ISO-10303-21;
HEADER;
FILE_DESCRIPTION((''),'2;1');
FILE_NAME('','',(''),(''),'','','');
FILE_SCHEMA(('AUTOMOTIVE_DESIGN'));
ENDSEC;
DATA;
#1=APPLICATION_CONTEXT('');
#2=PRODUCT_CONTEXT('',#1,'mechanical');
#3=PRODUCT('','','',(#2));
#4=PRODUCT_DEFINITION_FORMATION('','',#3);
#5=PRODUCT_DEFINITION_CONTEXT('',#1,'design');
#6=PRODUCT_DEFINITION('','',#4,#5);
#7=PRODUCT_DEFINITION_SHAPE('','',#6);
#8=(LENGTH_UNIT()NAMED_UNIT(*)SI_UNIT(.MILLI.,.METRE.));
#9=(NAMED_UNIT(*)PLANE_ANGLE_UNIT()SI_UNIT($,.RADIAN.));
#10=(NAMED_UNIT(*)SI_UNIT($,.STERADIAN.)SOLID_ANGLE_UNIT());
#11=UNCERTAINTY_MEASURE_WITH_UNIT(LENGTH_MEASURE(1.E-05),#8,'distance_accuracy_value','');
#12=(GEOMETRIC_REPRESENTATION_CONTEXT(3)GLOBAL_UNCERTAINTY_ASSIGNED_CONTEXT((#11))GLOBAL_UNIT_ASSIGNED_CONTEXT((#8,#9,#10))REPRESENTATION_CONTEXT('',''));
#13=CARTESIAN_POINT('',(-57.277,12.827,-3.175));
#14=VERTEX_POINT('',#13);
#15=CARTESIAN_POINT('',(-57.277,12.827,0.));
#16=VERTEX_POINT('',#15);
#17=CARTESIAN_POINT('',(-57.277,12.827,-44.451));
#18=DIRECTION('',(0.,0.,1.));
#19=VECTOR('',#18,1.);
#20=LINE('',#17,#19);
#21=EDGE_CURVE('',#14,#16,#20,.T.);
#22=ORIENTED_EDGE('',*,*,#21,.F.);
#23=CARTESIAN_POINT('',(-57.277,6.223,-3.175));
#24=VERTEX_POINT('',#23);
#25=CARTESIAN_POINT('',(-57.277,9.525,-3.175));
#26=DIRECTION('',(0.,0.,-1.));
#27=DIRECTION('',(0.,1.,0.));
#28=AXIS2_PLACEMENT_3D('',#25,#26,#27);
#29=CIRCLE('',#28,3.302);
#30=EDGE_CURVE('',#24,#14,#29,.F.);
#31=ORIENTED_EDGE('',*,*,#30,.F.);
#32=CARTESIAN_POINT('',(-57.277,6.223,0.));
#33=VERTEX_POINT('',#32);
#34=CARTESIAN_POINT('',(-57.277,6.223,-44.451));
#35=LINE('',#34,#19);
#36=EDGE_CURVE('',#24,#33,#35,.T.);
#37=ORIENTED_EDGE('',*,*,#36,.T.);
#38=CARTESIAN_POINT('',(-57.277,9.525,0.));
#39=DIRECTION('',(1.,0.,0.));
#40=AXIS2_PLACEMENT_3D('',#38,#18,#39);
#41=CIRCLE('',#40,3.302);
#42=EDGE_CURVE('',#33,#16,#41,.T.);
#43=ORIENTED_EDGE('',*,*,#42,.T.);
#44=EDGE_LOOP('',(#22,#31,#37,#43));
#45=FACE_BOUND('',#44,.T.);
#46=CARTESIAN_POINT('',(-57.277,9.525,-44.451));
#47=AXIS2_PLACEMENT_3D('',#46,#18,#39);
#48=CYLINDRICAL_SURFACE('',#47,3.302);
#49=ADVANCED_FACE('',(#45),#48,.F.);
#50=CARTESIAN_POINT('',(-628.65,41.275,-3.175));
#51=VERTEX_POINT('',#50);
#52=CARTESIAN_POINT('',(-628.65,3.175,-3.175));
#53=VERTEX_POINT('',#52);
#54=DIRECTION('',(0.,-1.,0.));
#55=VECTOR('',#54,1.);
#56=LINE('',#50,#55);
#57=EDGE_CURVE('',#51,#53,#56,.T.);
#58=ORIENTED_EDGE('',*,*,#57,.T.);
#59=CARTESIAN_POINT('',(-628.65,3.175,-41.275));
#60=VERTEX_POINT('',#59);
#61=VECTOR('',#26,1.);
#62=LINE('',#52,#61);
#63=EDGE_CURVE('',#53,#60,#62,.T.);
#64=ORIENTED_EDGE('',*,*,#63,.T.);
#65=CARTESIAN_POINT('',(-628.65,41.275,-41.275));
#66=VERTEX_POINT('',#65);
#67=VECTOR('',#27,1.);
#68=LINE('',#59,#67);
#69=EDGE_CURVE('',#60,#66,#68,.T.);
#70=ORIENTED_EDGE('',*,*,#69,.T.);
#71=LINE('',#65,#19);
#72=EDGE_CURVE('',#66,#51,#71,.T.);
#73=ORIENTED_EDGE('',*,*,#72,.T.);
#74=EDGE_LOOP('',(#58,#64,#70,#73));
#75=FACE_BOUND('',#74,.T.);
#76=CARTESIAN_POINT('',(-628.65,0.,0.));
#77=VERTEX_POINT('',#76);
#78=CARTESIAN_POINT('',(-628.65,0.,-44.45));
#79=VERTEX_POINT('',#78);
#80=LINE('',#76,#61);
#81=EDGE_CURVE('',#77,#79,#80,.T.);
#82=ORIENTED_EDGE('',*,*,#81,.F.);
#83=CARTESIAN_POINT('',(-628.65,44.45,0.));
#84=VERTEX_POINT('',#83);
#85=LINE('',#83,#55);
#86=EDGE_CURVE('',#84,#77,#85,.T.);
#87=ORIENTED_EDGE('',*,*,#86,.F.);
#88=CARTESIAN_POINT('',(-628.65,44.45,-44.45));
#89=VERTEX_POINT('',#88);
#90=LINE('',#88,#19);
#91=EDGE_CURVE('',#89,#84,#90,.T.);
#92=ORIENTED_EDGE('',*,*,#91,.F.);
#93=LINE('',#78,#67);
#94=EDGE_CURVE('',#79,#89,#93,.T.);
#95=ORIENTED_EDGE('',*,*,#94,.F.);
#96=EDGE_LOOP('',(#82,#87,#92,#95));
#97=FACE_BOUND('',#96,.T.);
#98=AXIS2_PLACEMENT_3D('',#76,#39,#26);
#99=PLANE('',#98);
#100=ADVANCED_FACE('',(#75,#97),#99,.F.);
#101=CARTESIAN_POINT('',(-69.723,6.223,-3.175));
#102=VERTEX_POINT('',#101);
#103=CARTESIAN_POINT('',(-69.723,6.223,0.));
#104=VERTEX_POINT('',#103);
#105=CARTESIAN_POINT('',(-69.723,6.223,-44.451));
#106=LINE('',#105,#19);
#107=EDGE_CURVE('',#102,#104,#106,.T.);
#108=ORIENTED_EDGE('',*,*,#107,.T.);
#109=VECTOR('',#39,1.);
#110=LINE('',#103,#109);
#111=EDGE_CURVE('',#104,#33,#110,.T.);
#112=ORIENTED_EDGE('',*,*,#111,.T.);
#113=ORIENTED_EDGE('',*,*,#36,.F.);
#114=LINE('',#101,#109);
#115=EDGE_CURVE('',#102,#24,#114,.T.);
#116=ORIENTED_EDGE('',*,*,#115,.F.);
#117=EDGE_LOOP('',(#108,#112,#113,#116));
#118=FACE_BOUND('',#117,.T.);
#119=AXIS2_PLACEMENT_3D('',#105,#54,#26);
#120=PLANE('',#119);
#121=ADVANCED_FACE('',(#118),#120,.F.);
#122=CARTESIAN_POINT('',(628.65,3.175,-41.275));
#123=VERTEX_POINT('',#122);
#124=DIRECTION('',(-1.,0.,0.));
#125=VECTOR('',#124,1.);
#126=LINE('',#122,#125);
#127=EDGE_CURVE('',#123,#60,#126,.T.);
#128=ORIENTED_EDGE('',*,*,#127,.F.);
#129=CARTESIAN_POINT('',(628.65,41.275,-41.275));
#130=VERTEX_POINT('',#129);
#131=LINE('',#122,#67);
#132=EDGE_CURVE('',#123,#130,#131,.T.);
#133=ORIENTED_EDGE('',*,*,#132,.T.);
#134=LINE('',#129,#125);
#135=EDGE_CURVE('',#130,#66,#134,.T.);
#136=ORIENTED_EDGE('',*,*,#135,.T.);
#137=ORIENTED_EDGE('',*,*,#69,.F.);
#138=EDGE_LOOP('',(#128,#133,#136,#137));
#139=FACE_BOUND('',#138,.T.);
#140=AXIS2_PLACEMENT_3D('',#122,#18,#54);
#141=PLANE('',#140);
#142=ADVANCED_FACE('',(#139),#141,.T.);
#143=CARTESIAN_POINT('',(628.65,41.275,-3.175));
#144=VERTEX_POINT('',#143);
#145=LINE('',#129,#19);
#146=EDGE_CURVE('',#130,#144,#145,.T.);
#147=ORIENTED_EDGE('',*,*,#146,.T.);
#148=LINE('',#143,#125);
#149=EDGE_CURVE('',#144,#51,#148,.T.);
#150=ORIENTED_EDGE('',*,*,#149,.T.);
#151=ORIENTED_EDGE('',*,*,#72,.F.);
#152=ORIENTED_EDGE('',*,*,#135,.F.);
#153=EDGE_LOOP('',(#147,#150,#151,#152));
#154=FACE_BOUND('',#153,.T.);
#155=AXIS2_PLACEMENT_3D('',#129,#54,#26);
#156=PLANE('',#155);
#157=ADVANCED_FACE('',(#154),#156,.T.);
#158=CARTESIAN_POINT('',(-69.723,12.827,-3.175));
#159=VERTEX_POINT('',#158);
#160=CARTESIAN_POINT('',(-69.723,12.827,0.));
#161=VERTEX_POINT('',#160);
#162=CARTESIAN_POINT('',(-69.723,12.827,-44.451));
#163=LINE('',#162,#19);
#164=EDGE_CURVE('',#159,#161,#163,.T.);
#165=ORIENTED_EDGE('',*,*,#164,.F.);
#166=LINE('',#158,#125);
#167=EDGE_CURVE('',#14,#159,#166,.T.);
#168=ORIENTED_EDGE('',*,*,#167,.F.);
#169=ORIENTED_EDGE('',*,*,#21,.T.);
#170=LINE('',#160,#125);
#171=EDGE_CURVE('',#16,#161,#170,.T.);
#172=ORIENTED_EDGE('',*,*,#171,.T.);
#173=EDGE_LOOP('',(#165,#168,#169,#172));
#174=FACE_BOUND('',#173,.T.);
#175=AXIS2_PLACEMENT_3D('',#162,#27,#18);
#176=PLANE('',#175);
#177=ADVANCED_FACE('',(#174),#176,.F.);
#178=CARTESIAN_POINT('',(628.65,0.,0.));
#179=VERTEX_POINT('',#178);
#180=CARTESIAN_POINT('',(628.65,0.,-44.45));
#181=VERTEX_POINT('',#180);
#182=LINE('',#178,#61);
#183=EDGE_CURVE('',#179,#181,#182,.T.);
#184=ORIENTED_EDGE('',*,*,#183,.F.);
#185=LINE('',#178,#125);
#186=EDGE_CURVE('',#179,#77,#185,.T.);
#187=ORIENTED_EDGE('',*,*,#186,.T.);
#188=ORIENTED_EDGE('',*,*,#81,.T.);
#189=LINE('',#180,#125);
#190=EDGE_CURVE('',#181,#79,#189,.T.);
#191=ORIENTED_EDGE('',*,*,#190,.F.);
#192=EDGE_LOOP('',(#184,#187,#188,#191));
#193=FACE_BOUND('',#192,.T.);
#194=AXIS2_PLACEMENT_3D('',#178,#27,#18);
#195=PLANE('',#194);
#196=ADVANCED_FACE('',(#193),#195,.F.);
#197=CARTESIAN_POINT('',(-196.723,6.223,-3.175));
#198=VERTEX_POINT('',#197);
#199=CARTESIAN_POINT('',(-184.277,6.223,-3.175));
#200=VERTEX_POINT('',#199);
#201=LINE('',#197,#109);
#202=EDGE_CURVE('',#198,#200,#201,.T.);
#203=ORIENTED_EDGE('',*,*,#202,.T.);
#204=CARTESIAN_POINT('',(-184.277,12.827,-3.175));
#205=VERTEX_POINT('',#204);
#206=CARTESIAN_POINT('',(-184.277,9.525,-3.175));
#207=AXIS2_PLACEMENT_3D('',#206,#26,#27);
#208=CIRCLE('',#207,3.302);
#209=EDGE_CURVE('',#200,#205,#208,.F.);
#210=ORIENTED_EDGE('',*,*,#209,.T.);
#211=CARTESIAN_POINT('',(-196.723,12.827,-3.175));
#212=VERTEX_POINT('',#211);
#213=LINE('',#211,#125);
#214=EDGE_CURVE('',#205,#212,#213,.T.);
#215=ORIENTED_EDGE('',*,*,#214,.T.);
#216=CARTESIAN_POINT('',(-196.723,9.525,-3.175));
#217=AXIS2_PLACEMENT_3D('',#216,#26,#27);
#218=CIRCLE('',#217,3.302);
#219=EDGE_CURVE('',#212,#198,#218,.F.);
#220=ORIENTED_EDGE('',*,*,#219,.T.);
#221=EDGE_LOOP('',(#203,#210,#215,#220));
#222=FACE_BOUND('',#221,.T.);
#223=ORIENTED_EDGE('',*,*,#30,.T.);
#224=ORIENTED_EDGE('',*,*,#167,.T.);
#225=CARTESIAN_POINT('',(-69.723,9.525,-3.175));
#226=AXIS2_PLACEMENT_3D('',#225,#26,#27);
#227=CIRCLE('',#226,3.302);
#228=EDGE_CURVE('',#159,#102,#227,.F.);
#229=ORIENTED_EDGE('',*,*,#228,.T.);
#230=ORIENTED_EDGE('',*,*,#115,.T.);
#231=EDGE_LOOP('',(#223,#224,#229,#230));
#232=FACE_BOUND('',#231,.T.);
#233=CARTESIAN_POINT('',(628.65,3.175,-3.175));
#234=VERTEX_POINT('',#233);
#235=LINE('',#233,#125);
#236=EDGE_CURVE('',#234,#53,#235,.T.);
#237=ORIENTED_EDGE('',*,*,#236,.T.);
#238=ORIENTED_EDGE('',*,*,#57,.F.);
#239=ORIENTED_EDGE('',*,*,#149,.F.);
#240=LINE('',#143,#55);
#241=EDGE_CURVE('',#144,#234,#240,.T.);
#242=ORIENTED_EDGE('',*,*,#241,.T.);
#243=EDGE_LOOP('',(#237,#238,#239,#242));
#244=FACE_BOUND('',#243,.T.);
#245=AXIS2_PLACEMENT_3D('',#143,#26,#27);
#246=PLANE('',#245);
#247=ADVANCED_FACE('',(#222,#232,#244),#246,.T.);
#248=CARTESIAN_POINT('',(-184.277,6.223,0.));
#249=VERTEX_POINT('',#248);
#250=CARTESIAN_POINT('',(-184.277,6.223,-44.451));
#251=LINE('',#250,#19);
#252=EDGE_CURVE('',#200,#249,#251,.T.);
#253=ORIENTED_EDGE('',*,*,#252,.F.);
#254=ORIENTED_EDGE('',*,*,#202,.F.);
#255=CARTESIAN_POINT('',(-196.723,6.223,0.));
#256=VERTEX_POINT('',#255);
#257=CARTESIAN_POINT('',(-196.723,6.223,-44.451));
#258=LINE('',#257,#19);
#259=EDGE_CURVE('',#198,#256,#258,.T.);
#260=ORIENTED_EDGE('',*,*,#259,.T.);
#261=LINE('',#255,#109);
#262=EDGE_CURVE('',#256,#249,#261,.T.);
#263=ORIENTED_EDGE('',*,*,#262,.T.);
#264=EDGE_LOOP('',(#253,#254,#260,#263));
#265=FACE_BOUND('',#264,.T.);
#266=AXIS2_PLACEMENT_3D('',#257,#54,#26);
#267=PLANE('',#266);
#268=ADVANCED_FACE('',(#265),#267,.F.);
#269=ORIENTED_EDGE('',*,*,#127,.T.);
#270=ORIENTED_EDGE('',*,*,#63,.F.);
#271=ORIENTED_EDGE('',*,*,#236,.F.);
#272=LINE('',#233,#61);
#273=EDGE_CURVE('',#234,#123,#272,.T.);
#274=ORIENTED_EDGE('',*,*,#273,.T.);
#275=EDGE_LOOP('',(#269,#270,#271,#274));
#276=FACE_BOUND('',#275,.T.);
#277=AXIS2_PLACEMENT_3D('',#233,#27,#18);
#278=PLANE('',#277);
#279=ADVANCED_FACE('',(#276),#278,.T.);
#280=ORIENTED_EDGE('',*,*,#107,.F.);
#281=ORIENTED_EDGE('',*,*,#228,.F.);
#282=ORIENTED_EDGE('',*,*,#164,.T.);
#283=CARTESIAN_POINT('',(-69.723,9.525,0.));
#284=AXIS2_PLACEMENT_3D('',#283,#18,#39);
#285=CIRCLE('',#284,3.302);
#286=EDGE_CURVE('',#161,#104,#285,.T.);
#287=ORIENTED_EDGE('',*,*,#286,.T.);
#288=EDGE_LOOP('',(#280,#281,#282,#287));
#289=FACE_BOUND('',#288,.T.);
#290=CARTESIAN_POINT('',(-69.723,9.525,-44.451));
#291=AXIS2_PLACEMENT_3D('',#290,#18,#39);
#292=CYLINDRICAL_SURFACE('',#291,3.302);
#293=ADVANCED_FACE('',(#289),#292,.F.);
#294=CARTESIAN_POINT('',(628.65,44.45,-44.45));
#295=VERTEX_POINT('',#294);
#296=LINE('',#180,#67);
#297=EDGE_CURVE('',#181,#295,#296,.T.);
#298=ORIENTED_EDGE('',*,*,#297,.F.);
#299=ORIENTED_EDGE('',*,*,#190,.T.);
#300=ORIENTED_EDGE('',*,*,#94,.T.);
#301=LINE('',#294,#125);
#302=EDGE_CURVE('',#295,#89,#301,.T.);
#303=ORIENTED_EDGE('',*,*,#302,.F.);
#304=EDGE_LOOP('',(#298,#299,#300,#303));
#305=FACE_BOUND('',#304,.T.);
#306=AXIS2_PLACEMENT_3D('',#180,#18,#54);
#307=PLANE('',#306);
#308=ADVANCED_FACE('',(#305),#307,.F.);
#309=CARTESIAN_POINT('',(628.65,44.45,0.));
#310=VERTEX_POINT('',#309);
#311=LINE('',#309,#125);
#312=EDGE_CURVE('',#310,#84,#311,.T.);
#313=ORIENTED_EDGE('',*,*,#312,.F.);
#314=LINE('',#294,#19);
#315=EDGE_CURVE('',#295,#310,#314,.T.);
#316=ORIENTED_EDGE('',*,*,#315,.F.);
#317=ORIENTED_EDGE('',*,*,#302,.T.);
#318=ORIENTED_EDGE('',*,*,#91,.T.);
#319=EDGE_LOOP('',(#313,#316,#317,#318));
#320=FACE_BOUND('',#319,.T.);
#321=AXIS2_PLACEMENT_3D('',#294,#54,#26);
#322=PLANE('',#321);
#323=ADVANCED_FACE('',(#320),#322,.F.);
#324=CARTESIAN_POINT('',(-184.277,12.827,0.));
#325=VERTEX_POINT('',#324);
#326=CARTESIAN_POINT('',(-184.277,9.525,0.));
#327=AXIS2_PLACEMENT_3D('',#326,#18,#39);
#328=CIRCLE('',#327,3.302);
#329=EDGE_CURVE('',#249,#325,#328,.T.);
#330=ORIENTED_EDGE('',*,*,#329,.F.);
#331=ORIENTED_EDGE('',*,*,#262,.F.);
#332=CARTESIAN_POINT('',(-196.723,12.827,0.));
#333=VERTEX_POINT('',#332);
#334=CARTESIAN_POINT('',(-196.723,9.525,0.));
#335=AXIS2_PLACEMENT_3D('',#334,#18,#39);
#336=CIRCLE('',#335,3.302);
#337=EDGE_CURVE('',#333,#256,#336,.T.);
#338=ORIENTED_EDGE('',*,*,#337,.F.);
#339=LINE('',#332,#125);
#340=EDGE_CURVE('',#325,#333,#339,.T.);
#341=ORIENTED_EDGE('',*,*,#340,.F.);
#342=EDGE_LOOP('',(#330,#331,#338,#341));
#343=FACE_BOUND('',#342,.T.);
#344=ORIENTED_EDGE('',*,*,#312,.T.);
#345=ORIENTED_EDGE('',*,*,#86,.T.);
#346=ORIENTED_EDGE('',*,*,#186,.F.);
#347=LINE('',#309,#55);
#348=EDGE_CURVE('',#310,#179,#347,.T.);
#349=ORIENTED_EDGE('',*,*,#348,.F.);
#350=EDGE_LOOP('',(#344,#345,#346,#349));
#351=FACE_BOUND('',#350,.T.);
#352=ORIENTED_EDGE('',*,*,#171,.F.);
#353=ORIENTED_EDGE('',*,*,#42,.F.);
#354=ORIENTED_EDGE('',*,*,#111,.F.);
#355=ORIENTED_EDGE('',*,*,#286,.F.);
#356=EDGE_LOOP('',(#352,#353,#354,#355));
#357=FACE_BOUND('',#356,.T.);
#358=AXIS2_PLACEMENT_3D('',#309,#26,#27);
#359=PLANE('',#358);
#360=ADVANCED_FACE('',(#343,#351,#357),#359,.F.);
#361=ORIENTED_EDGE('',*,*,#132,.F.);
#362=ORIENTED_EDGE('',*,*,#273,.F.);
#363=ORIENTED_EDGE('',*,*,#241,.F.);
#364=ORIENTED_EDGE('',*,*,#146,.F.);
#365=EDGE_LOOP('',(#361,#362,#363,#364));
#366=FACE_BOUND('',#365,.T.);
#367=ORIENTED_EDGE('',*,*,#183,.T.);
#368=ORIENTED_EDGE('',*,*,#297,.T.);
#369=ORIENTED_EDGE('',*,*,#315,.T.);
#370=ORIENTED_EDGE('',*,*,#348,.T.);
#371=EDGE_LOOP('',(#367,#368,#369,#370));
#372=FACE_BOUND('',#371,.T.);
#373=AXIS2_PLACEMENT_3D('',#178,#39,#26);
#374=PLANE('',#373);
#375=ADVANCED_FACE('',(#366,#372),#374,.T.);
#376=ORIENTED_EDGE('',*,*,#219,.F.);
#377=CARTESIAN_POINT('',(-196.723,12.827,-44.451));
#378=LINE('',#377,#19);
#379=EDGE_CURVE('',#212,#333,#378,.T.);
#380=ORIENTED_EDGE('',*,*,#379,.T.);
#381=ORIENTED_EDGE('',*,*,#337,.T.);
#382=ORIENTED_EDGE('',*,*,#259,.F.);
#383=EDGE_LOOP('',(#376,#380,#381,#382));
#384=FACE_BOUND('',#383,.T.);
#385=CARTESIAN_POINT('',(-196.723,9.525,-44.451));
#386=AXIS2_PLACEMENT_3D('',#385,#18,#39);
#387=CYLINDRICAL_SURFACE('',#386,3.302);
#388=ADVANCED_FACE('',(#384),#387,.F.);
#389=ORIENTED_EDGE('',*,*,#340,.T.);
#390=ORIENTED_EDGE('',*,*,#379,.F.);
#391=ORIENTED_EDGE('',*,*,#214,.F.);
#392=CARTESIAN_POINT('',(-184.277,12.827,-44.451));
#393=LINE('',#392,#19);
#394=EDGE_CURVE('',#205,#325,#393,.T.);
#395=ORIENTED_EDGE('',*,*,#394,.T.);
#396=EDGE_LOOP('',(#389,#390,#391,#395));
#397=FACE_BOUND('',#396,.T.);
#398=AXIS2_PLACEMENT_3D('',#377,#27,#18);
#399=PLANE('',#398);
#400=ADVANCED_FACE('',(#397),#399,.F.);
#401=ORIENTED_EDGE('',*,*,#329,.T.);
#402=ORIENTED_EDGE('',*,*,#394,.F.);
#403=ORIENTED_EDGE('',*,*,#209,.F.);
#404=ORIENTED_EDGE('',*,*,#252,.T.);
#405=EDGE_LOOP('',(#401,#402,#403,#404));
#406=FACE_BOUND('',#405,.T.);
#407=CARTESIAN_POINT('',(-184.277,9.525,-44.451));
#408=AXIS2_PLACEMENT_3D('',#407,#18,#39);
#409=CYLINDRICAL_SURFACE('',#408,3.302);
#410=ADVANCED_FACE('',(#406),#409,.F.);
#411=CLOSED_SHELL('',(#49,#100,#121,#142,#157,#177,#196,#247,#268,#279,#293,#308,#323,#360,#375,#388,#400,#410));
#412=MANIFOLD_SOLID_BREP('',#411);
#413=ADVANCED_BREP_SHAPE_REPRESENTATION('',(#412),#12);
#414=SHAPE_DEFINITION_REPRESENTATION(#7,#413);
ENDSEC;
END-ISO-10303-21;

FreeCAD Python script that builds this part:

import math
import FreeCAD as App
import Part
import Sketcher
from FreeCAD import Vector
Q = App.Units.Quantity

doc = App.newDocument("Part")
body = doc.addObject("PartDesign::Body", "Body")

# Sketch on YZ plane
sketch1 = body.newObject("Sketcher::SketchObject", "Sketch")
sketch1.AttachmentSupport = (doc.getObject("YZ_Plane"), [""])
sketch1.MapMode = "FlatFace"
sketch1.addGeometry([
    Part.LineSegment(Vector(44, 0, 0), Vector(0, 0, 0)),  # 0
    Part.LineSegment(Vector(0, 0, 0), Vector(0, -44, 0)),  # 1
    Part.LineSegment(Vector(0, -44, 0), Vector(44, -44, 0)),  # 2
    Part.LineSegment(Vector(44, -44, 0), Vector(44, 0, 0)),  # 3
    Part.LineSegment(Vector(3, -41, 0), Vector(3, -3, 0)),  # 4
    Part.LineSegment(Vector(3, -3, 0), Vector(41, -3, 0)),  # 5
    Part.LineSegment(Vector(41, -3, 0), Vector(41, -41, 0)),  # 6
    Part.LineSegment(Vector(41, -41, 0), Vector(3, -41, 0)),  # 7
], False)
sketch1.addConstraint([
    Sketcher.Constraint("Coincident", 0, 2, 1, 1),
    Sketcher.Constraint("Coincident", 1, 2, 2, 1),
    Sketcher.Constraint("Coincident", 2, 2, 3, 1),
    Sketcher.Constraint("Coincident", 3, 2, 0, 1),
    Sketcher.Constraint("Coincident", 4, 2, 5, 1),
    Sketcher.Constraint("Coincident", 5, 2, 6, 1),
    Sketcher.Constraint("Coincident", 6, 2, 7, 1),
    Sketcher.Constraint("Coincident", 7, 2, 4, 1),
    Sketcher.Constraint("Horizontal", 0),
    Sketcher.Constraint("Vertical", 1),
    Sketcher.Constraint("Horizontal", 2),
    Sketcher.Constraint("Vertical", 3),
    Sketcher.Constraint("Vertical", 4),
    Sketcher.Constraint("Horizontal", 5),
    Sketcher.Constraint("Vertical", 6),
    Sketcher.Constraint("Horizontal", 7),
    Sketcher.Constraint("Coincident", 0, 2, -1, 1),
    Sketcher.Constraint("Equal", 2, 1),
    Sketcher.Constraint("Equal", 7, 4),
    Sketcher.Constraint("DistanceX", 5, 1, 5, 2, Q("1.5 in")),
    Sketcher.Constraint("DistanceX", 0, 2, 0, 1, Q("1.75 in")),
    Sketcher.Constraint("DistanceX", -1, 1, 4, 2, Q("0.125 in")),
    Sketcher.Constraint("DistanceY", 4, 2, -1, 1, Q("0.125 in")),
])
pad1 = body.newObject("PartDesign::Pad", "Pad")
pad1.Profile = sketch1
pad1.Length = Q("49.5 in")
pad1.Midplane = True

# Sketch on XY plane
sketch2 = body.newObject("Sketcher::SketchObject", "Sketch001")
sketch2.AttachmentSupport = (doc.getObject("XY_Plane"), [""])
sketch2.MapMode = "FlatFace"
sketch2.addGeometry([
    Part.LineSegment(Vector(-184.3, 12.8, 0), Vector(-196.7, 12.8, 0)),
    Part.ArcOfCircle(Part.Circle(Vector(-196.7, 9.5, 0), Vector(0, 0, 1), 3.3), math.radians(90), math.radians(270)),
    Part.LineSegment(Vector(-196.7, 6.2, 0), Vector(-184.3, 6.2, 0)),
    Part.ArcOfCircle(Part.Circle(Vector(-184.3, 9.5, 0), Vector(0, 0, 1), 3.3), math.radians(-90), math.radians(90)),
], False)
sketch2.addConstraint([
    Sketcher.Constraint("Tangent", 0, 2, 1, 1),
    Sketcher.Constraint("Tangent", 1, 2, 2, 1),
    Sketcher.Constraint("Tangent", 2, 2, 3, 1),
    Sketcher.Constraint("Tangent", 3, 2, 0, 1),
    Sketcher.Constraint("Horizontal", 0),
    Sketcher.Constraint("Horizontal", 2),
    Sketcher.Constraint("Radius", 1, Q("0.13 in")),
    Sketcher.Constraint("DistanceX", 0, 2, 0, 1, Q("0.49 in")),
    Sketcher.Constraint("DistanceX", 1, 3, -1, 1, Q("7.745 in")),
    Sketcher.Constraint("DistanceY", -1, 1, 1, 3, Q("0.375 in")),
])
pocket1 = body.newObject("PartDesign::Pocket", "Pocket")
pocket1.Profile = sketch2
pocket1.Type = "UpToFirst"

# Sketch on XY plane
sketch3 = body.newObject("Sketcher::SketchObject", "Sketch002")
sketch3.AttachmentSupport = (doc.getObject("XY_Plane"), [""])
sketch3.MapMode = "FlatFace"
sketch3.addGeometry([
    Part.LineSegment(Vector(-57.3, 12.8, 0), Vector(-69.7, 12.8, 0)),
    Part.ArcOfCircle(Part.Circle(Vector(-69.7, 9.5, 0), Vector(0, 0, 1), 3.3), math.radians(90), math.radians(270)),
    Part.LineSegment(Vector(-69.7, 6.2, 0), Vector(-57.3, 6.2, 0)),
    Part.ArcOfCircle(Part.Circle(Vector(-57.3, 9.5, 0), Vector(0, 0, 1), 3.3), math.radians(-90), math.radians(90)),
], False)
sketch3.addConstraint([
    Sketcher.Constraint("Tangent", 0, 2, 1, 1),
    Sketcher.Constraint("Tangent", 1, 2, 2, 1),
    Sketcher.Constraint("Tangent", 2, 2, 3, 1),
    Sketcher.Constraint("Tangent", 3, 2, 0, 1),
    Sketcher.Constraint("Horizontal", 0),
    Sketcher.Constraint("Horizontal", 2),
    Sketcher.Constraint("Radius", 1, Q("0.13 in")),
    Sketcher.Constraint("DistanceX", 0, 2, 0, 1, Q("0.49 in")),
    Sketcher.Constraint("DistanceX", 1, 3, -1, 1, Q("2.745 in")),
    Sketcher.Constraint("DistanceY", -1, 1, 1, 3, Q("0.375 in")),
])
pocket2 = body.newObject("PartDesign::Pocket", "Pocket001")
pocket2.Profile = sketch3
pocket2.Type = "UpToFirst"

doc.recompute()
